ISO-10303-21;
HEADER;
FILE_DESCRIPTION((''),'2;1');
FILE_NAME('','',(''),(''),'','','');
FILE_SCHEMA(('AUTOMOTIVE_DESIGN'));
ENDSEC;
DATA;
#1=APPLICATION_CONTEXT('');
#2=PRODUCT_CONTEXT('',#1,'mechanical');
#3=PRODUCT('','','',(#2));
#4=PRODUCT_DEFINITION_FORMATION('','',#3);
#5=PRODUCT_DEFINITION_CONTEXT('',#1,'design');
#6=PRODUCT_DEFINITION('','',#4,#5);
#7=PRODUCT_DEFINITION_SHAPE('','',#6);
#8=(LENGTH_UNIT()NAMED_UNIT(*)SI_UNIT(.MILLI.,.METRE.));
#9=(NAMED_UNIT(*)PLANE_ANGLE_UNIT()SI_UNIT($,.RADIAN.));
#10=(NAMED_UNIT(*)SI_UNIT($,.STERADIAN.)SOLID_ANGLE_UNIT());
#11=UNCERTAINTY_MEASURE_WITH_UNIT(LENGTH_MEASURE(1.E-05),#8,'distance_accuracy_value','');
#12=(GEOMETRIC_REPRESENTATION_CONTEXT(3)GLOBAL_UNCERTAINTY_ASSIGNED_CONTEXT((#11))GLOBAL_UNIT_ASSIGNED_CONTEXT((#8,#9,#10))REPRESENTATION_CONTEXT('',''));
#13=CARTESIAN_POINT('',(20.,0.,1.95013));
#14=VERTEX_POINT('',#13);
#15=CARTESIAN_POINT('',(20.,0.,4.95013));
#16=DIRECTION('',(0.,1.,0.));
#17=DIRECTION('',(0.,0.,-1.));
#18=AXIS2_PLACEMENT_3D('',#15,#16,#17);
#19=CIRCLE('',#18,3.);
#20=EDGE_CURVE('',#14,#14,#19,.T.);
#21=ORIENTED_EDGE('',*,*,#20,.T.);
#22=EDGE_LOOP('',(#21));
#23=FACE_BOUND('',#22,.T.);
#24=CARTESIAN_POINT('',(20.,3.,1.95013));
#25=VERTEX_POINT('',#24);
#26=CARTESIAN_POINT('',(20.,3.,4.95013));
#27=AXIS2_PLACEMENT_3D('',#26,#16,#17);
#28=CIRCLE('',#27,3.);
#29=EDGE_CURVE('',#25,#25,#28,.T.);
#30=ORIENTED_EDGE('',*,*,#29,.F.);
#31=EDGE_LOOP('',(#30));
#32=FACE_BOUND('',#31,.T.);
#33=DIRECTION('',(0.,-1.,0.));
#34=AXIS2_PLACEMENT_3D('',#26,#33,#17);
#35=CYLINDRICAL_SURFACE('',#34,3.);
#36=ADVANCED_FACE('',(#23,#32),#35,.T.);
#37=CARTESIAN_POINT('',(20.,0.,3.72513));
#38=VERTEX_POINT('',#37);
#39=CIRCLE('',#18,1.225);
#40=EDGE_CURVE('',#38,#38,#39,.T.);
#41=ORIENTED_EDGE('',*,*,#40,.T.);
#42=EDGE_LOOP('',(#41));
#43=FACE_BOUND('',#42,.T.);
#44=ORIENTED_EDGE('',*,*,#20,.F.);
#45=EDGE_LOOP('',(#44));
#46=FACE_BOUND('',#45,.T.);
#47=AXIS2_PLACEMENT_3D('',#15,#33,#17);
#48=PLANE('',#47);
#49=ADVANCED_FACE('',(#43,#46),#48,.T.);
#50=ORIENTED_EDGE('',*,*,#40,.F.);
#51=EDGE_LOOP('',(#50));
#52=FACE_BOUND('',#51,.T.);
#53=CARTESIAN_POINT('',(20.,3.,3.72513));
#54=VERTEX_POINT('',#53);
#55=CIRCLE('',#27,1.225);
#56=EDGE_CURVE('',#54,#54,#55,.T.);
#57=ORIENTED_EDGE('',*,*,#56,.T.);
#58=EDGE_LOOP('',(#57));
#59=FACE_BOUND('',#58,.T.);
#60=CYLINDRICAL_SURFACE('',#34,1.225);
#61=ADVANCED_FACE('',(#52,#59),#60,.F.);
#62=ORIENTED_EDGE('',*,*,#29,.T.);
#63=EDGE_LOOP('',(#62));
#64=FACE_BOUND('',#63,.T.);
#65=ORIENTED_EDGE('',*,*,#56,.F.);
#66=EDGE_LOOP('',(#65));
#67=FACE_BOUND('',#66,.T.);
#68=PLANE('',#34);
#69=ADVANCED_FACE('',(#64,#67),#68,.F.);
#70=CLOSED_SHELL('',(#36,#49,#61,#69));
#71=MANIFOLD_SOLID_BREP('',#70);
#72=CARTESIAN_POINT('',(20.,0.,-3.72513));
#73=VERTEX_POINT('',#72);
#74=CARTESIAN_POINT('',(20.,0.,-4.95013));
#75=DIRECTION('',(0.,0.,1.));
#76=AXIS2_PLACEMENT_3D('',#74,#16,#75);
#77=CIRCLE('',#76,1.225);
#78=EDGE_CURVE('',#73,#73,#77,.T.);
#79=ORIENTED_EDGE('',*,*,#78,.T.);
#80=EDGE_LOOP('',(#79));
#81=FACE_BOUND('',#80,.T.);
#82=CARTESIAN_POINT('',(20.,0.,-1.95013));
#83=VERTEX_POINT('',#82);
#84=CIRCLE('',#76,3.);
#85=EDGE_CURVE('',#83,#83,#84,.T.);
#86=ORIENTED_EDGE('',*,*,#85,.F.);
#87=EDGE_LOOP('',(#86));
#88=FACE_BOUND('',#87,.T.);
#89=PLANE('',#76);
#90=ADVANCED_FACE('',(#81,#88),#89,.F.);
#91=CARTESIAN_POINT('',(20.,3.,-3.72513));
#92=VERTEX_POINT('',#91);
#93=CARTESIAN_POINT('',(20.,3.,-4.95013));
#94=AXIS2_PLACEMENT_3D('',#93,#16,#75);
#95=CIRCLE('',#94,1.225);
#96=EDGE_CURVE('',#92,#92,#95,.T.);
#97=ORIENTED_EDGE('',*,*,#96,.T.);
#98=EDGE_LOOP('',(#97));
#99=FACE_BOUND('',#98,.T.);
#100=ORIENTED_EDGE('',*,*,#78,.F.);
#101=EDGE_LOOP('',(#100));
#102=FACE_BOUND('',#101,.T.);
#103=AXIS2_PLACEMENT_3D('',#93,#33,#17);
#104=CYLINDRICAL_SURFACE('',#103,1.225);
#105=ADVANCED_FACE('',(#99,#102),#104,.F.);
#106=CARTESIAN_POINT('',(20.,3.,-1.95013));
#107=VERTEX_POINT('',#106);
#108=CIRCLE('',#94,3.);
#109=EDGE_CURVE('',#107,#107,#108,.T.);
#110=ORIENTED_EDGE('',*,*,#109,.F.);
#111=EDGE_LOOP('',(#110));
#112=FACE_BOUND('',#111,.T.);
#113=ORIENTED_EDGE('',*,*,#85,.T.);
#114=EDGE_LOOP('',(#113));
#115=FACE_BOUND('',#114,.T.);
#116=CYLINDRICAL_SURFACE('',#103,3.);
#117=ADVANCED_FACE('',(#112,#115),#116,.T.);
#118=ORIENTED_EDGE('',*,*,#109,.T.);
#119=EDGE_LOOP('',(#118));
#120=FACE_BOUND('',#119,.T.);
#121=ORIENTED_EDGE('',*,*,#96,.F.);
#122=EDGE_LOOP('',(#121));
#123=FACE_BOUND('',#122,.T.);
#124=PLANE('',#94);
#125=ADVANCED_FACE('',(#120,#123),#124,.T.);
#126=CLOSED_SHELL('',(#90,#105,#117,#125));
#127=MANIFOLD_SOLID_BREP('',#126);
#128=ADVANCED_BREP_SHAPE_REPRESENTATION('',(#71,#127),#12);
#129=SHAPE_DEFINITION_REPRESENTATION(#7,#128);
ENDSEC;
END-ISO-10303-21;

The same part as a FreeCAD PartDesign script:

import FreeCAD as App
import Part
import Sketcher
Q = App.Units.Quantity


def add_polygon(sketch, points):
    """Adds a closed chain of lines whose ends are joined by coincident constraints."""
    first, n = sketch.GeometryCount, len(points)
    for a, b in zip(points, points[1:] + points[:1]):
        sketch.addGeometry(Part.LineSegment(App.Vector(*a, 0), App.Vector(*b, 0)), False)
    for i in range(n):
        sketch.addConstraint(Sketcher.Constraint("Coincident", first + i, 2, first + (i + 1) % n, 1))

doc = App.newDocument("Part")
params = doc.addObject("Spreadsheet::Sheet", "Params")
for row, (alias, value) in enumerate([
    ("sketch1_diameter", "6 mm"),
    ("sketch1_diameter2", "2.1 mm"),
    ("pad1_length", "3 mm"),
    ("sketch2_diameter", "6 mm"),
    ("sketch2_diameter2", "2.1 mm"),
    ("pad2_length", "3 mm"),
    ("sketch3_diameter", "6 mm"),
    ("sketch3_diameter2", "2.15 mm"),
    ("pad3_length", "3 mm"),
    ("sketch4_diameter", "6 mm"),
    ("sketch4_diameter2", "2.15 mm"),
    ("pad4_length", "3 mm"),
    ("sketch5_diameter", "6 mm"),
    ("sketch5_diameter2", "2.45 mm"),
    ("pad5_length", "3 mm"),
    ("sketch6_diameter", "6 mm"),
    ("sketch6_diameter2", "2.45 mm"),
    ("pad6_length", "3 mm"),
    ("sketch7_diameter", "6 mm"),
    ("sketch7_diameter2", "2.25 mm"),
    ("pad7_length", "3 mm"),
    ("sketch8_diameter", "6 mm"),
    ("sketch8_diameter2", "2.25 mm"),
    ("pad8_length", "3 mm"),
    ("pad9_length", "4 mm"),
], start=1):
    params.set(f"A{row}", alias)
    params.set(f"B{row}", "=" + value)
    params.setAlias(f"B{row}", alias)

body = doc.addObject("PartDesign::Body", "Body")

# Sketch on XZ plane
sketch1 = doc.addObject("Sketcher::SketchObject", "Sketch")
body.addObject(sketch1)
sketch1.AttachmentSupport = (doc.XZ_Plane, [""])
sketch1.MapMode = "FlatFace"
sketch1.addGeometry(Part.Circle(App.Vector(0, -5, 0), App.Vector(0, 0, 1), 3), False)
sketch1.addGeometry(Part.Circle(App.Vector(0, -5, 0), App.Vector(0, 0, 1), 1.1), False)
sketch1.addConstraint(Sketcher.Constraint("Coincident", 1, 3, 0, 3))
sketch1.addConstraint(Sketcher.Constraint("PointOnObject", 0, 3, -2))
sketch1.addConstraint(Sketcher.Constraint("Diameter", 0, Q("6 mm")))
sketch1.addConstraint(Sketcher.Constraint("Diameter", 1, Q("2.1 mm")))
sketch1.addConstraint(Sketcher.Constraint("DistanceY", 0, 3, -1, 1, Q("4.95013 mm")))
sketch1.setExpression("Constraints[2]", "Params.sketch1_diameter")
sketch1.setExpression("Constraints[3]", "Params.sketch1_diameter2")
pad1 = doc.addObject("PartDesign::Pad", "Pad")
body.addObject(pad1)
pad1.Profile = sketch1
pad1.setExpression("Length", "Params.pad1_length")
pad1.Reversed = True
body2 = doc.addObject("PartDesign::Body", "Body001")

# Sketch on XZ plane
sketch2 = doc.addObject("Sketcher::SketchObject", "Sketch001")
body2.addObject(sketch2)
sketch2.AttachmentSupport = (doc.getObject("XZ_Plane001"), [""])
sketch2.MapMode = "FlatFace"
sketch2.addGeometry(Part.Circle(App.Vector(0, 5, 0), App.Vector(0, 0, 1), 3), False)
sketch2.addGeometry(Part.Circle(App.Vector(0, 5, 0), App.Vector(0, 0, 1), 1.1), False)
sketch2.addConstraint(Sketcher.Constraint("Coincident", 1, 3, 0, 3))
sketch2.addConstraint(Sketcher.Constraint("PointOnObject", 0, 3, -2))
sketch2.addConstraint(Sketcher.Constraint("Diameter", 0, Q("6 mm")))
sketch2.addConstraint(Sketcher.Constraint("Diameter", 1, Q("2.1 mm")))
sketch2.addConstraint(Sketcher.Constraint("DistanceY", -1, 1, 0, 3, Q("4.95013 mm")))
sketch2.setExpression("Constraints[2]", "Params.sketch2_diameter")
sketch2.setExpression("Constraints[3]", "Params.sketch2_diameter2")
pad2 = doc.addObject("PartDesign::Pad", "Pad001")
body2.addObject(pad2)
pad2.Profile = sketch2
pad2.setExpression("Length", "Params.pad2_length")
pad2.Reversed = True
body3 = doc.addObject("PartDesign::Body", "Body002")

# Sketch on XZ plane
sketch3 = doc.addObject("Sketcher::SketchObject", "Sketch002")
body3.addObject(sketch3)
sketch3.AttachmentSupport = (doc.getObject("XZ_Plane002"), [""])
sketch3.MapMode = "FlatFace"
sketch3.addGeometry(Part.Circle(App.Vector(10, 5, 0), App.Vector(0, 0, 1), 3), False)
sketch3.addGeometry(Part.Circle(App.Vector(10, 5, 0), App.Vector(0, 0, 1), 1.1), False)
sketch3.addConstraint(Sketcher.Constraint("Coincident", 1, 3, 0, 3))
sketch3.addConstraint(Sketcher.Constraint("Diameter", 0, Q("6 mm")))
sketch3.addConstraint(Sketcher.Constraint("Diameter", 1, Q("2.15 mm")))
sketch3.addConstraint(Sketcher.Constraint("DistanceX", -1, 1, 0, 3, Q("10 mm")))
sketch3.addConstraint(Sketcher.Constraint("DistanceY", -1, 1, 0, 3, Q("4.95013 mm")))
sketch3.setExpression("Constraints[1]", "Params.sketch3_diameter")
sketch3.setExpression("Constraints[2]", "Params.sketch3_diameter2")
pad3 = doc.addObject("PartDesign::Pad", "Pad002")
body3.addObject(pad3)
pad3.Profile = sketch3
pad3.setExpression("Length", "Params.pad3_length")
pad3.Reversed = True
body4 = doc.addObject("PartDesign::Body", "Body003")

# Sketch on XZ plane
sketch4 = doc.addObject("Sketcher::SketchObject", "Sketch003")
body4.addObject(sketch4)
sketch4.AttachmentSupport = (doc.getObject("XZ_Plane003"), [""])
sketch4.MapMode = "FlatFace"
sketch4.addGeometry(Part.Circle(App.Vector(10, -5, 0), App.Vector(0, 0, 1), 3), False)
sketch4.addGeometry(Part.Circle(App.Vector(10, -5, 0), App.Vector(0, 0, 1), 1.1), False)
sketch4.addConstraint(Sketcher.Constraint("Coincident", 1, 3, 0, 3))
sketch4.addConstraint(Sketcher.Constraint("Diameter", 0, Q("6 mm")))
sketch4.addConstraint(Sketcher.Constraint("Diameter", 1, Q("2.15 mm")))
sketch4.addConstraint(Sketcher.Constraint("DistanceX", -1, 1, 0, 3, Q("10 mm")))
sketch4.addConstraint(Sketcher.Constraint("DistanceY", 0, 3, -1, 1, Q("4.95013 mm")))
sketch4.setExpression("Constraints[1]", "Params.sketch4_diameter")
sketch4.setExpression("Constraints[2]", "Params.sketch4_diameter2")
pad4 = doc.addObject("PartDesign::Pad", "Pad003")
body4.addObject(pad4)
pad4.Profile = sketch4
pad4.setExpression("Length", "Params.pad4_length")
pad4.Reversed = True
body5 = doc.addObject("PartDesign::Body", "Body004")

# Sketch on XZ plane
sketch5 = doc.addObject("Sketcher::SketchObject", "Sketch004")
body5.addObject(sketch5)
sketch5.AttachmentSupport = (doc.getObject("XZ_Plane004"), [""])
sketch5.MapMode = "FlatFace"
sketch5.addGeometry(Part.Circle(App.Vector(20, 5, 0), App.Vector(0, 0, 1), 3), False)
sketch5.addGeometry(Part.Circle(App.Vector(20, 5, 0), App.Vector(0, 0, 1), 1.2), False)
sketch5.addConstraint(Sketcher.Constraint("Coincident", 1, 3, 0, 3))
sketch5.addConstraint(Sketcher.Constraint("Diameter", 0, Q("6 mm")))
sketch5.addConstraint(Sketcher.Constraint("Diameter", 1, Q("2.45 mm")))
sketch5.addConstraint(Sketcher.Constraint("DistanceX", -1, 1, 0, 3, Q("20 mm")))
sketch5.addConstraint(Sketcher.Constraint("DistanceY", -1, 1, 0, 3, Q("4.95013 mm")))
sketch5.setExpression("Constraints[1]", "Params.sketch5_diameter")
sketch5.setExpression("Constraints[2]", "Params.sketch5_diameter2")
pad5 = doc.addObject("PartDesign::Pad", "Pad004")
body5.addObject(pad5)
pad5.Profile = sketch5
pad5.setExpression("Length", "Params.pad5_length")
pad5.Reversed = True
body6 = doc.addObject("PartDesign::Body", "Body005")

# Sketch on XZ plane
sketch6 = doc.addObject("Sketcher::SketchObject", "Sketch005")
body6.addObject(sketch6)
sketch6.AttachmentSupport = (doc.getObject("XZ_Plane005"), [""])
sketch6.MapMode = "FlatFace"
sketch6.addGeometry(Part.Circle(App.Vector(20, -5, 0), App.Vector(0, 0, 1), 3), False)
sketch6.addGeometry(Part.Circle(App.Vector(20, -5, 0), App.Vector(0, 0, 1), 1.2), False)
sketch6.addConstraint(Sketcher.Constraint("Coincident", 1, 3, 0, 3))
sketch6.addConstraint(Sketcher.Constraint("Diameter", 0, Q("6 mm")))
sketch6.addConstraint(Sketcher.Constraint("Diameter", 1, Q("2.45 mm")))
sketch6.addConstraint(Sketcher.Constraint("DistanceX", -1, 1, 0, 3, Q("20 mm")))
sketch6.addConstraint(Sketcher.Constraint("DistanceY", 0, 3, -1, 1, Q("4.95013 mm")))
sketch6.setExpression("Constraints[1]", "Params.sketch6_diameter")
sketch6.setExpression("Constraints[2]", "Params.sketch6_diameter2")
pad6 = doc.addObject("PartDesign::Pad", "Pad005")
body6.addObject(pad6)
pad6.Profile = sketch6
pad6.setExpression("Length", "Params.pad6_length")
pad6.Reversed = True
body7 = doc.addObject("PartDesign::Body", "Body006")

# Sketch on XZ plane
sketch7 = doc.addObject("Sketcher::SketchObject", "Sketch006")
body7.addObject(sketch7)
sketch7.AttachmentSupport = (doc.getObject("XZ_Plane006"), [""])
sketch7.MapMode = "FlatFace"
sketch7.addGeometry(Part.Circle(App.Vector(30, 5, 0), App.Vector(0, 0, 1), 3), False)
sketch7.addGeometry(Part.Circle(App.Vector(30, 5, 0), App.Vector(0, 0, 1), 1.1), False)
sketch7.addConstraint(Sketcher.Constraint("Coincident", 1, 3, 0, 3))
sketch7.addConstraint(Sketcher.Constraint("Diameter", 0, Q("6 mm")))
sketch7.addConstraint(Sketcher.Constraint("Diameter", 1, Q("2.25 mm")))
sketch7.addConstraint(Sketcher.Constraint("DistanceX", -1, 1, 0, 3, Q("30 mm")))
sketch7.addConstraint(Sketcher.Constraint("DistanceY", -1, 1, 0, 3, Q("4.95013 mm")))
sketch7.setExpression("Constraints[1]", "Params.sketch7_diameter")
sketch7.setExpression("Constraints[2]", "Params.sketch7_diameter2")
pad7 = doc.addObject("PartDesign::Pad", "Pad006")
body7.addObject(pad7)
pad7.Profile = sketch7
pad7.setExpression("Length", "Params.pad7_length")
pad7.Reversed = True
body8 = doc.addObject("PartDesign::Body", "Body007")

# Sketch on XZ plane
sketch8 = doc.addObject("Sketcher::SketchObject", "Sketch007")
body8.addObject(sketch8)
sketch8.AttachmentSupport = (doc.getObject("XZ_Plane007"), [""])
sketch8.MapMode = "FlatFace"
sketch8.addGeometry(Part.Circle(App.Vector(30, -5, 0), App.Vector(0, 0, 1), 3), False)
sketch8.addGeometry(Part.Circle(App.Vector(30, -5, 0), App.Vector(0, 0, 1), 1.1), False)
sketch8.addConstraint(Sketcher.Constraint("Coincident", 1, 3, 0, 3))
sketch8.addConstraint(Sketcher.Constraint("Diameter", 0, Q("6 mm")))
sketch8.addConstraint(Sketcher.Constraint("Diameter", 1, Q("2.25 mm")))
sketch8.addConstraint(Sketcher.Constraint("DistanceX", -1, 1, 0, 3, Q("30 mm")))
sketch8.addConstraint(Sketcher.Constraint("DistanceY", 0, 3, -1, 1, Q("4.95013 mm")))
sketch8.setExpression("Constraints[1]", "Params.sketch8_diameter")
sketch8.setExpression("Constraints[2]", "Params.sketch8_diameter2")
pad8 = doc.addObject("PartDesign::Pad", "Pad007")
body8.addObject(pad8)
pad8.Profile = sketch8
pad8.setExpression("Length", "Params.pad8_length")
pad8.Reversed = True
body9 = doc.addObject("PartDesign::Body", "Body008")
body9.AllowCompound = True

# Sketch on XZ plane
sketch9 = doc.addObject("Sketcher::SketchObject", "Sketch008")
body9.addObject(sketch9)
sketch9.AttachmentSupport = (doc.getObject("XZ_Plane008"), [""])
sketch9.MapMode = "FlatFace"
add_polygon(sketch9, [(-7, -11), (-7, 15), (15, 15), (15, -11)])  # lines 0-3
add_polygon(sketch9, [(25, -13), (25, 14), (41, 14), (41, -13)])  # lines 4-7
sketch9.addConstraint(Sketcher.Constraint("Vertical", 0))
sketch9.addConstraint(Sketcher.Constraint("Horizontal", 1))
sketch9.addConstraint(Sketcher.Constraint("Vertical", 2))
sketch9.addConstraint(Sketcher.Constraint("Horizontal", 3))
sketch9.addConstraint(Sketcher.Constraint("Vertical", 4))
sketch9.addConstraint(Sketcher.Constraint("Horizontal", 5))
sketch9.addConstraint(Sketcher.Constraint("Vertical", 6))
sketch9.addConstraint(Sketcher.Constraint("Horizontal", 7))
sketch9.addConstraint(Sketcher.Constraint("DistanceX", 5, 1, 5, 2, Q("15.51617 mm")))
sketch9.addConstraint(Sketcher.Constraint("DistanceX", -1, 1, 1, 2, Q("15.3712 mm")))
sketch9.addConstraint(Sketcher.Constraint("DistanceX", 1, 1, 1, 2, Q("22.049294 mm")))
sketch9.addConstraint(Sketcher.Constraint("DistanceY", 0, 1, 0, 2, Q("26.577936 mm")))
sketch9.addConstraint(Sketcher.Constraint("DistanceY", 4, 1, 4, 2, Q("27.468817 mm")))
sketch9.addConstraint(Sketcher.Constraint("DistanceY", -1, 1, 0, 2, Q("15.293449 mm")))
sketch9.addConstraint(Sketcher.Constraint("DistanceY", -1, 1, 4, 2, Q("14.402569 mm")))
sketch9.addConstraint(Sketcher.Constraint("DistanceX", 0, 2, 4, 2, Q("31.92322 mm")))
pad9 = doc.addObject("PartDesign::Pad", "Pad008")
body9.addObject(pad9)
pad9.Profile = sketch9
pad9.setExpression("Length", "Params.pad9_length")
pad9.Reversed = True
doc.recompute()

body10 = doc.addObject("PartDesign::Body", "Body009")
body10.BaseFeature = body9
boolean = doc.addObject("PartDesign::Boolean", "Boolean")
body.addObject(boolean)
boolean.Type = "Cut"
boolean.addObjects([body10])
doc.recompute()

body11 = doc.addObject("PartDesign::Body", "Body010")
body11.BaseFeature = body9
boolean2 = doc.addObject("PartDesign::Boolean", "Boolean001")
body2.addObject(boolean2)
boolean2.Type = "Cut"
boolean2.addObjects([body11])
doc.recompute()

body12 = doc.addObject("PartDesign::Body", "Body011")
body12.BaseFeature = body9
boolean3 = doc.addObject("PartDesign::Boolean", "Boolean002")
body3.addObject(boolean3)
boolean3.Type = "Cut"
boolean3.addObjects([body12])
doc.recompute()

body13 = doc.addObject("PartDesign::Body", "Body012")
body13.BaseFeature = body9
boolean4 = doc.addObject("PartDesign::Boolean", "Boolean003")
body4.addObject(boolean4)
boolean4.Type = "Cut"
boolean4.addObjects([body13])
doc.recompute()

body14 = doc.addObject("PartDesign::Body", "Body013")
body14.BaseFeature = body9
boolean5 = doc.addObject("PartDesign::Boolean", "Boolean004")
body7.addObject(boolean5)
boolean5.Type = "Cut"
boolean5.addObjects([body14])
doc.recompute()

boolean6 = doc.addObject("PartDesign::Boolean", "Boolean005")
body8.addObject(boolean6)
boolean6.Type = "Cut"
boolean6.addObjects([body9])

doc.recompute()
